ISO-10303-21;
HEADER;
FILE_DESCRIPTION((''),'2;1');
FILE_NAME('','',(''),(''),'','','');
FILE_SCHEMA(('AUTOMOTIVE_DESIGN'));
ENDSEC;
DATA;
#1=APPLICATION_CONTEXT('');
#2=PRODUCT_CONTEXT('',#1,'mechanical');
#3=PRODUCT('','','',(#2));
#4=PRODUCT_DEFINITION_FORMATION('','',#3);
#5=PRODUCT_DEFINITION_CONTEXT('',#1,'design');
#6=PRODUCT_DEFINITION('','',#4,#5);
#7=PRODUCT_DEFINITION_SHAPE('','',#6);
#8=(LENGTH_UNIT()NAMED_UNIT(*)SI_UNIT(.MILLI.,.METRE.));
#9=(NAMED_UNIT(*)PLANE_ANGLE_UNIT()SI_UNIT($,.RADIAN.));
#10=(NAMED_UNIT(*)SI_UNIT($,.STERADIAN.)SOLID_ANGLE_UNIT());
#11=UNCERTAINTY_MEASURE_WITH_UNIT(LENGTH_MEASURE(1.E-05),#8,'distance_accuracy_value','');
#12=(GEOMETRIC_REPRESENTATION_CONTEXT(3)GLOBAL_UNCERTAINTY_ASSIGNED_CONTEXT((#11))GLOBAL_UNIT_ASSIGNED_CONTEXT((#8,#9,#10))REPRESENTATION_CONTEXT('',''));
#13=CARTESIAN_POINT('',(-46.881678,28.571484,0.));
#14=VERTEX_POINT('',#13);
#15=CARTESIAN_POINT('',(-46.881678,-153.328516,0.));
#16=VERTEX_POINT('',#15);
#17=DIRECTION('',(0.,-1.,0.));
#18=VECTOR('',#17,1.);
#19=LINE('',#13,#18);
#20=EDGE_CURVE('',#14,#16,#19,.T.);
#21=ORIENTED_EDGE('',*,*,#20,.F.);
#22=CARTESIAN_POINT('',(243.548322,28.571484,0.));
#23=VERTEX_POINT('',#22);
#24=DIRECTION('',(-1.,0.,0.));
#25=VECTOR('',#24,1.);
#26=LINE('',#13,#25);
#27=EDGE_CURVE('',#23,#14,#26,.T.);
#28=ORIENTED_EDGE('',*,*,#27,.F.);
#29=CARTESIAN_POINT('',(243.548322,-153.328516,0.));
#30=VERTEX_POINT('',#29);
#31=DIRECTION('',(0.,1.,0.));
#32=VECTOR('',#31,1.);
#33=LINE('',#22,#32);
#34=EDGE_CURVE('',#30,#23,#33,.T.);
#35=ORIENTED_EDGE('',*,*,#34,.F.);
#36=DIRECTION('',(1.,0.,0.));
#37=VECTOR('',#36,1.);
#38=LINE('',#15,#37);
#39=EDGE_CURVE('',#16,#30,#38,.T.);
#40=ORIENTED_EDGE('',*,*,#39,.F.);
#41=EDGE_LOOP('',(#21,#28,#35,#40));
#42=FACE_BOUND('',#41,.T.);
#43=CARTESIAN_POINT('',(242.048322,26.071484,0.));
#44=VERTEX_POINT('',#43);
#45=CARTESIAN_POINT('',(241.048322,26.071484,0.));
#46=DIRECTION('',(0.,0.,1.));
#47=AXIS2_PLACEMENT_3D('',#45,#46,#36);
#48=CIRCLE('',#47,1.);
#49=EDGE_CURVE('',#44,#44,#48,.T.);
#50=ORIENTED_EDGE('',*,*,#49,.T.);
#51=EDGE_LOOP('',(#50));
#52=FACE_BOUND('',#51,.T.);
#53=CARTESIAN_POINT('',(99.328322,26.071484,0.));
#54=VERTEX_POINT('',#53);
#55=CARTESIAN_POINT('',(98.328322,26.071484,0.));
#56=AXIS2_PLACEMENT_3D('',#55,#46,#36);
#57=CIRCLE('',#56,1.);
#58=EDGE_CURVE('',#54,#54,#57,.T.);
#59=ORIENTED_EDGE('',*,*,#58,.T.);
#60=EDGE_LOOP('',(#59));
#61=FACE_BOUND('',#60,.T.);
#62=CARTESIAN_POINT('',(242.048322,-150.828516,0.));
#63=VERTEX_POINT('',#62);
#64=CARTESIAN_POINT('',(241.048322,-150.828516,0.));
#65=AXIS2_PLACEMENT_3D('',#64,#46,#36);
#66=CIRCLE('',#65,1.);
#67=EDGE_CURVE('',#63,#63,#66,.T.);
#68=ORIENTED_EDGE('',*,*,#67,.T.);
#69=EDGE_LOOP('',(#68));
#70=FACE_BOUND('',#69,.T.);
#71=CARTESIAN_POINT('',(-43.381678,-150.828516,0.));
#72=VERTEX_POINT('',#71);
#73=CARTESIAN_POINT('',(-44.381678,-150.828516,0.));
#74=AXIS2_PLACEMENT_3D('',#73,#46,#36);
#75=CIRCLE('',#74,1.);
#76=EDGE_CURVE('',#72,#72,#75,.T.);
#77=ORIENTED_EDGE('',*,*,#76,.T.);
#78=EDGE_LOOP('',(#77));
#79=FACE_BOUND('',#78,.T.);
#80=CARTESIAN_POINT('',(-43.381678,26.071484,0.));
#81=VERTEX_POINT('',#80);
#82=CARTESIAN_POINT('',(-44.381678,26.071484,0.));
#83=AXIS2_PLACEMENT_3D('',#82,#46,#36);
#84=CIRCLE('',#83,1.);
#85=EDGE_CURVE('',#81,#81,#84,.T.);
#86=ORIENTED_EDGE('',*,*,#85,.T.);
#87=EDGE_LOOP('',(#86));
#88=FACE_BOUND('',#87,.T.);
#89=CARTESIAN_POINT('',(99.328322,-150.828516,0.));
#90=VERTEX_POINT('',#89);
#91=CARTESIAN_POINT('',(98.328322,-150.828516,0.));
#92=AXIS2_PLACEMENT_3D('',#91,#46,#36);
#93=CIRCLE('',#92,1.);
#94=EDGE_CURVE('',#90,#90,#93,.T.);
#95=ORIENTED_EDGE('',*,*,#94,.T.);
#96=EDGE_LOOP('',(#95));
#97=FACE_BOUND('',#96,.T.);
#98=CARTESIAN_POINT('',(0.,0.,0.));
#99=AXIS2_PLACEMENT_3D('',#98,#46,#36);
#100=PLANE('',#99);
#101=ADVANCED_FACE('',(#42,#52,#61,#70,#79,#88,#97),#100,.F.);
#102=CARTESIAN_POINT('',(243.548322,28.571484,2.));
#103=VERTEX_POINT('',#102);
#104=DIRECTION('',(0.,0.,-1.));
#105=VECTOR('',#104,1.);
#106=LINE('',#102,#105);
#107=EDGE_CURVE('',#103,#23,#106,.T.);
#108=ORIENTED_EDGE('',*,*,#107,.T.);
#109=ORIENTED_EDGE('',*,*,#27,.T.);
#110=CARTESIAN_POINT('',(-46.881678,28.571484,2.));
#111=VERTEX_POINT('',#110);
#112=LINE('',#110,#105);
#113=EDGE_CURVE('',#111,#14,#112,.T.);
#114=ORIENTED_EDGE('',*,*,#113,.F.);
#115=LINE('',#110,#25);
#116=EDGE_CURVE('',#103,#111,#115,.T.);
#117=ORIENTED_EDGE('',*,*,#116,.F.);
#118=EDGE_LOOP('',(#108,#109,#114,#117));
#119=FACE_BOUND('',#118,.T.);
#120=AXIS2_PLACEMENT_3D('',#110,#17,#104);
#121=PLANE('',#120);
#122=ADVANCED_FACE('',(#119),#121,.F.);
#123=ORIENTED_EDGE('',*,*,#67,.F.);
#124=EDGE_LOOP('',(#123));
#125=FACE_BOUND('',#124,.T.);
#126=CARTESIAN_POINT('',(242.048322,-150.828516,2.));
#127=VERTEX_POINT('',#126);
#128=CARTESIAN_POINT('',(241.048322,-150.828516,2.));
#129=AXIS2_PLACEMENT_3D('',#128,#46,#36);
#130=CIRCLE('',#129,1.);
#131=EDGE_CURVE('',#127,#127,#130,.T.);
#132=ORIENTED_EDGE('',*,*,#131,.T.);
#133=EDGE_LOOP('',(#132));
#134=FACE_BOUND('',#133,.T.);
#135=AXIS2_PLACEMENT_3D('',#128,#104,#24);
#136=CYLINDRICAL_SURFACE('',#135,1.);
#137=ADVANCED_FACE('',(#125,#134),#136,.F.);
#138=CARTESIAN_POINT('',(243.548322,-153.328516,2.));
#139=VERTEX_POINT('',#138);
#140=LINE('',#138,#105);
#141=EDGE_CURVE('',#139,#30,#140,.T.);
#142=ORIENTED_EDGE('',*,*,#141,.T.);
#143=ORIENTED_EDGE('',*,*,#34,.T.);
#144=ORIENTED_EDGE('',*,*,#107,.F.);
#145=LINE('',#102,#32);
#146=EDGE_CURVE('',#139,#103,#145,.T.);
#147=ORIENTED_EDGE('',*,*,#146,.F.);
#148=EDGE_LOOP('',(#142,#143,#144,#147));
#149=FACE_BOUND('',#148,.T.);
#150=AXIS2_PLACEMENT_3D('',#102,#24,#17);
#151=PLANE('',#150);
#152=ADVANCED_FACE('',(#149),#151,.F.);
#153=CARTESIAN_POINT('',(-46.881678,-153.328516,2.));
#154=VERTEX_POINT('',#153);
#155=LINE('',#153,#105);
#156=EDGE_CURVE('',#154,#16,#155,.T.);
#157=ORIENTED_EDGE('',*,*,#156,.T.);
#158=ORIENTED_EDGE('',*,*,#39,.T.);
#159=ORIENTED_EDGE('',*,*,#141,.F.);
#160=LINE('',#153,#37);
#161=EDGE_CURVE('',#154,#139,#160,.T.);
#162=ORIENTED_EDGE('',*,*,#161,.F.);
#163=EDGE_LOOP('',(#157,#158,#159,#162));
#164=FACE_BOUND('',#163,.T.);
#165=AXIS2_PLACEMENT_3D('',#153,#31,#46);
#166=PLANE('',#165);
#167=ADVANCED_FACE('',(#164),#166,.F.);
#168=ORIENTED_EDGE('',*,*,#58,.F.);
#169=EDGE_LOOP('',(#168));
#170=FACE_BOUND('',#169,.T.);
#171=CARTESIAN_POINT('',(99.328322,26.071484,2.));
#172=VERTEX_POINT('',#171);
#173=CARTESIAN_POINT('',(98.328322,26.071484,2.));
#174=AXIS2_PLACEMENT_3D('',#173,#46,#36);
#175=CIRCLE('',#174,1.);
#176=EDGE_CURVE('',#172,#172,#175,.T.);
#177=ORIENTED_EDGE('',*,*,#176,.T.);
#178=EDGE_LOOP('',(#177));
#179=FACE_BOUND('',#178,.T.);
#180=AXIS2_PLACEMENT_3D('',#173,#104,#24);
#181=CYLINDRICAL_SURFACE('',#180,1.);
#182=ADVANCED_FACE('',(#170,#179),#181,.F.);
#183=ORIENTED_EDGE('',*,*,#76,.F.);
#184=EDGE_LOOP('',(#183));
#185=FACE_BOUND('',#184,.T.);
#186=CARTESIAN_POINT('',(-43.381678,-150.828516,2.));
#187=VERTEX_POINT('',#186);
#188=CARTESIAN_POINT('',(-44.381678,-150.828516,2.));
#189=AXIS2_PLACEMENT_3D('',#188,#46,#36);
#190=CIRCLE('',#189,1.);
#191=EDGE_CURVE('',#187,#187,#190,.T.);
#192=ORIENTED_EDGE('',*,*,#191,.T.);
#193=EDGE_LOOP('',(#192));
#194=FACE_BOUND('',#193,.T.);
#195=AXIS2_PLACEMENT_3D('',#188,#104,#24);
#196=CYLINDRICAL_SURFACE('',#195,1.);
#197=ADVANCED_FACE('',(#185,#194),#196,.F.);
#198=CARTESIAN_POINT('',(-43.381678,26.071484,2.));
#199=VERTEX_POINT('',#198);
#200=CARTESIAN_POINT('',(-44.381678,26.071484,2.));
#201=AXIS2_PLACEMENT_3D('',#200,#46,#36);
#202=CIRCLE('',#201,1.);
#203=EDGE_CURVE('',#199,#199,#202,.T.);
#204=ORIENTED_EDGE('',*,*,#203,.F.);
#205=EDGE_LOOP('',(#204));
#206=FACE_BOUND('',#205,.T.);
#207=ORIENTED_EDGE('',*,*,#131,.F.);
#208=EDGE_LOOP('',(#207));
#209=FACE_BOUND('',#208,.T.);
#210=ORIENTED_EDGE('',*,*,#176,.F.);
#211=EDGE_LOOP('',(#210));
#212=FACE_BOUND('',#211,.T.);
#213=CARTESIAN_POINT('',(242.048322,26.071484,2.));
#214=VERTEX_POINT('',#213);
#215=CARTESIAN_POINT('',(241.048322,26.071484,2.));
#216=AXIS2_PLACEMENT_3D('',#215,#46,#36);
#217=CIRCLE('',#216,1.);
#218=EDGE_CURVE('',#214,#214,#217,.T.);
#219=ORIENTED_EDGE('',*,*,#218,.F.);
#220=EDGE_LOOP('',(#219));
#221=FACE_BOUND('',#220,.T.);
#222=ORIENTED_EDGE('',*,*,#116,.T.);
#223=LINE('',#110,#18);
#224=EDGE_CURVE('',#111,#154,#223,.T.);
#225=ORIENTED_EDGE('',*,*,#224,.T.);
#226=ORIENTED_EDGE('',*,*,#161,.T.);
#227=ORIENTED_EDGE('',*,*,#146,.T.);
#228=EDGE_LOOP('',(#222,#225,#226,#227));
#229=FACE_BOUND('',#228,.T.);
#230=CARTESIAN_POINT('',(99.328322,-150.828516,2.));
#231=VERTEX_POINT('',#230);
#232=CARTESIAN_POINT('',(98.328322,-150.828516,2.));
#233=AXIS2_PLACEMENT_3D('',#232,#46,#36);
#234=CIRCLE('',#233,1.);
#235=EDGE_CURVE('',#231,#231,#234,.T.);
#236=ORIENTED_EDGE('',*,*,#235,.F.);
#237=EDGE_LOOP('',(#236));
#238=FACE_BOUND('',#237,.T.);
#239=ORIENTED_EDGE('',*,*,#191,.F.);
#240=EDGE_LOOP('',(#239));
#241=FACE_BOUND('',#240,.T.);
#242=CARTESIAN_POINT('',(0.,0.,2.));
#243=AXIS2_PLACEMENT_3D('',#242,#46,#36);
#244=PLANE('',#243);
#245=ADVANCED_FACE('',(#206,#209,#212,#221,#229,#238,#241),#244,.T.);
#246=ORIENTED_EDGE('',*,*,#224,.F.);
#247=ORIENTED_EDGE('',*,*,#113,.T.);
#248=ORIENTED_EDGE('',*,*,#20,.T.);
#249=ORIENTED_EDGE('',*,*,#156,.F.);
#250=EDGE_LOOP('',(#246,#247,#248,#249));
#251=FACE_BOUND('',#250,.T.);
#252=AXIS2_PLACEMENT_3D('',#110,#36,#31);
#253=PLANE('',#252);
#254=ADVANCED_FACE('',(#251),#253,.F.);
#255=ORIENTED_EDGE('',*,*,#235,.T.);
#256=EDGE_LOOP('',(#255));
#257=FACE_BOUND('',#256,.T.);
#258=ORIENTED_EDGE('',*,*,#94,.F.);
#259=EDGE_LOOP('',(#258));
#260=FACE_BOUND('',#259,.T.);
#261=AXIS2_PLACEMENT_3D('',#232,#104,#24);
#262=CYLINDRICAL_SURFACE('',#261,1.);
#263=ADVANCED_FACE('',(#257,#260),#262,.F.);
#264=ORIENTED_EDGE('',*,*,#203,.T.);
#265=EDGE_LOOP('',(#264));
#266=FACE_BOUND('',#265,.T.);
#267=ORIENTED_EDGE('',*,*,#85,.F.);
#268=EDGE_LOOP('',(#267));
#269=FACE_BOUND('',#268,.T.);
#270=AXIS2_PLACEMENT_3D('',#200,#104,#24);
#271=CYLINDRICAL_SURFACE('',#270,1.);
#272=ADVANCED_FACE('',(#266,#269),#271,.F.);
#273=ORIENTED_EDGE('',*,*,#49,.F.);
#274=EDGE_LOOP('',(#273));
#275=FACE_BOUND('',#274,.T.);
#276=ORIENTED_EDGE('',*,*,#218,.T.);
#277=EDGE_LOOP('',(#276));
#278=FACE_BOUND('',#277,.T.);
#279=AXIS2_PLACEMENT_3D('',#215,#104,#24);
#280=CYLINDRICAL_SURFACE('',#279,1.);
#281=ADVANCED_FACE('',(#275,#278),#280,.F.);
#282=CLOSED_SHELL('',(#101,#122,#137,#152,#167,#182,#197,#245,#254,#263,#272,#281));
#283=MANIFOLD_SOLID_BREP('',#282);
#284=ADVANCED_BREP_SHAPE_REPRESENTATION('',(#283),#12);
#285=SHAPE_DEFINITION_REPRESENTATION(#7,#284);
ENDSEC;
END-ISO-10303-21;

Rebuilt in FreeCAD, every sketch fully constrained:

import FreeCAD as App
import Part
import Sketcher
Q = App.Units.Quantity

doc = App.newDocument("Part")
params = doc.addObject("Spreadsheet::Sheet", "Params")
for row, (alias, value) in enumerate([
    ("sketch1_diameter", "2 mm"),
    ("sketch1_height", "181.9 mm"),
    ("sketch1_width", "290.43 mm"),
    ("pad1_length", "2 mm"),
], start=1):
    params.set(f"A{row}", alias)
    params.set(f"B{row}", "=" + value)
    params.setAlias(f"B{row}", alias)

body = doc.addObject("PartDesign::Body", "Body")

# Sketch on XY plane
sketch1 = body.newObject("Sketcher::SketchObject", "Sketch")
sketch1.AttachmentSupport = (doc.getObject("XY_Plane"), [""])
sketch1.MapMode = "FlatFace"
sketch1.addGeometry([
    Part.LineSegment(App.Vector(-46.9, 28.6, 0), App.Vector(-46.9, -153.3, 0)),  # 0
    Part.LineSegment(App.Vector(-46.9, -153.3, 0), App.Vector(243.5, -153.3, 0)),  # 1
    Part.LineSegment(App.Vector(243.5, -153.3, 0), App.Vector(243.5, 28.6, 0)),  # 2
    Part.LineSegment(App.Vector(243.5, 28.6, 0), App.Vector(-46.9, 28.6, 0)),  # 3
    Part.Circle(App.Vector(-44.4, -150.8, 0), App.Vector(0, 0, 1), 1),  # 4
    Part.Circle(App.Vector(98.3, -150.8, 0), App.Vector(0, 0, 1), 1),  # 5
    Part.Circle(App.Vector(241, -150.8, 0), App.Vector(0, 0, 1), 1),  # 6
    Part.Circle(App.Vector(-44.4, 26.1, 0), App.Vector(0, 0, 1), 1),  # 7
    Part.Circle(App.Vector(98.3, 26.1, 0), App.Vector(0, 0, 1), 1),  # 8
    Part.Circle(App.Vector(241, 26.1, 0), App.Vector(0, 0, 1), 1),  # 9
], False)
sketch1.addConstraint([
    Sketcher.Constraint("Coincident", 0, 2, 1, 1),
    Sketcher.Constraint("Coincident", 1, 2, 2, 1),
    Sketcher.Constraint("Coincident", 2, 2, 3, 1),
    Sketcher.Constraint("Coincident", 3, 2, 0, 1),
    Sketcher.Constraint("Vertical", 0),
    Sketcher.Constraint("Horizontal", 1),
    Sketcher.Constraint("Vertical", 2),
    Sketcher.Constraint("Horizontal", 3),
    Sketcher.Constraint("Equal", 4, 5),
    Sketcher.Constraint("Equal", 5, 6),
    Sketcher.Constraint("Equal", 6, 7),
    Sketcher.Constraint("Equal", 7, 8),
    Sketcher.Constraint("Equal", 8, 9),
    Sketcher.Constraint("Horizontal", 4, 3, 5, 3),
    Sketcher.Constraint("Horizontal", 5, 3, 6, 3),
    Sketcher.Constraint("Horizontal", 7, 3, 8, 3),
    Sketcher.Constraint("Horizontal", 8, 3, 9, 3),
    Sketcher.Constraint("Vertical", 4, 3, 7, 3),
    Sketcher.Constraint("Vertical", 5, 3, 8, 3),
    Sketcher.Constraint("Vertical", 6, 3, 9, 3),
    Sketcher.Constraint("Diameter", 4, Q("2 mm")),
    Sketcher.Constraint("DistanceY", 0, 2, 0, 1, Q("181.9 mm")),
    Sketcher.Constraint("DistanceX", 1, 1, 1, 2, Q("290.43 mm")),
    Sketcher.Constraint("DistanceY", 4, 3, 7, 3, Q("176.9 mm")),
    Sketcher.Constraint("DistanceX", 0, 2, 4, 3, Q("2.5 mm")),
    Sketcher.Constraint("DistanceY", 0, 2, 4, 3, Q("2.5 mm")),
    Sketcher.Constraint("DistanceX", 6, 3, 1, 2, Q("2.5 mm")),
    Sketcher.Constraint("DistanceX", 4, 3, 5, 3, Q("142.71 mm")),
    Sketcher.Constraint("DistanceX", 4, 3, -1, 1, Q("44.381678 mm")),
    Sketcher.Constraint("DistanceY", 4, 3, -1, 1, Q("150.828516 mm")),
])
sketch1.setExpression("Constraints[20]", "Params.sketch1_diameter")
sketch1.setExpression("Constraints[21]", "Params.sketch1_height")
sketch1.setExpression("Constraints[22]", "Params.sketch1_width")
pad1 = body.newObject("PartDesign::Pad", "Pad")
pad1.Profile = sketch1
pad1.setExpression("Length", "Params.pad1_length")

doc.recompute()
